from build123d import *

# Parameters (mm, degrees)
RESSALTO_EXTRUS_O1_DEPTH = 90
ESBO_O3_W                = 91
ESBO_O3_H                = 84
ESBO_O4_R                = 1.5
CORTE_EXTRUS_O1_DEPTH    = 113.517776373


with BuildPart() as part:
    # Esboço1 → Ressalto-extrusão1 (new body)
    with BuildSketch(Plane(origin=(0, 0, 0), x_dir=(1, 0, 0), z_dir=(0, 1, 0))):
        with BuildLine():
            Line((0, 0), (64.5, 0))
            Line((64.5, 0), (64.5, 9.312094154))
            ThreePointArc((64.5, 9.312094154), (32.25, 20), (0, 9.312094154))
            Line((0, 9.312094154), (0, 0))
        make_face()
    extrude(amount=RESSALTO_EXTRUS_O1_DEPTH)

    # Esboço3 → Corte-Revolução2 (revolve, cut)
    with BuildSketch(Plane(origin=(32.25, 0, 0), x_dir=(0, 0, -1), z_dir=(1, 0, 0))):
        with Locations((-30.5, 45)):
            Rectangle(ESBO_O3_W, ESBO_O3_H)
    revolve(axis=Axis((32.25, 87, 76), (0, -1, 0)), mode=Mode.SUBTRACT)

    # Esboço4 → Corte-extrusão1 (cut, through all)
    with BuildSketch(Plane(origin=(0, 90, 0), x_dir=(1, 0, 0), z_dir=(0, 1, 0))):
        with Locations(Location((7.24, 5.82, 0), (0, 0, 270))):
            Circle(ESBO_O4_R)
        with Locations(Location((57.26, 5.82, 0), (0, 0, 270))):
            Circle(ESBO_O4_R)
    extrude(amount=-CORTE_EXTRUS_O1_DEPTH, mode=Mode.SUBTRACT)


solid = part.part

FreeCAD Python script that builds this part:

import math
import FreeCAD as App
import Part
import Sketcher


def add_polygon(sketch, points):
    """Adds a closed chain of lines whose ends are joined by coincident constraints."""
    first, n = sketch.GeometryCount, len(points)
    for a, b in zip(points, points[1:] + points[:1]):
        sketch.addGeometry(Part.LineSegment(App.Vector(*a, 0), App.Vector(*b, 0)), False)
    for i in range(n):
        sketch.addConstraint(Sketcher.Constraint("Coincident", first + i, 2, first + (i + 1) % n, 1))

doc = App.newDocument("Part")
body = doc.addObject("PartDesign::Body", "Body")

sketch1 = body.newObject("Sketcher::SketchObject", "Sketch")
sketch1.AttachmentSupport = (doc.getObject("XZ_Plane"), [""])
sketch1.MapMode = "FlatFace"
sketch1.addGeometry([
    Part.LineSegment(App.Vector(0, 0, 0), App.Vector(64.5, 0, 0)),
    Part.LineSegment(App.Vector(64.5, 0, 0), App.Vector(64.5, -9.312094, 0)),
    Part.ArcOfCircle(Part.Circle(App.Vector(32.25, 34, 0), App.Vector(0, 0, 1), 54), math.radians(-126.671212), math.radians(-53.328788)),
    Part.LineSegment(App.Vector(0, -9.312094, 0), App.Vector(0, 0, 0)),
], False)
sketch1.addConstraint([
    Sketcher.Constraint("Coincident", 0, 2, 1, 1),
    Sketcher.Constraint("Coincident", 1, 2, 2, 2),
    Sketcher.Constraint("Coincident", 2, 1, 3, 1),
    Sketcher.Constraint("Coincident", 3, 2, 0, 1),
    Sketcher.Constraint("Horizontal", 0),
    Sketcher.Constraint("Vertical", 1),
    Sketcher.Constraint("Vertical", 3),
    Sketcher.Constraint("Coincident", 3, 2, -1, 1),
    Sketcher.Constraint("Horizontal", 1, 2, 2, 1),
    Sketcher.Constraint("Radius", 2, 54.0),
    Sketcher.Constraint("DistanceX", 0, 1, 0, 2, 64.5),
    Sketcher.Constraint("DistanceY", -1, 1, 2, 3, 34.0),
])
pad1 = body.newObject("PartDesign::Pad", "Pad")
pad1.Profile = sketch1
pad1.Length = 90
pad1.Reversed = True

sketch2 = body.newObject("Sketcher::SketchObject", "Sketch001")
sketch2.AttachmentSupport = (doc.getObject("YZ_Plane"), [""])
sketch2.MapMode = "FlatFace"
sketch2.AttachmentOffset = App.Placement(App.Vector(0, 0, 32.25), App.Rotation())
add_polygon(sketch2, [(87, 76), (3, 76), (3, -15), (87, -15)])
sketch2.addGeometry(Part.LineSegment(App.Vector(87, 76, 0), App.Vector(3, 76, 0)), True)
sketch2.addConstraint([
    Sketcher.Constraint("Horizontal", 0),
    Sketcher.Constraint("Vertical", 1),
    Sketcher.Constraint("Horizontal", 2),
    Sketcher.Constraint("Vertical", 3),
    Sketcher.Constraint("Horizontal", 4),
    Sketcher.Constraint("Coincident", 4, 1, 3, 2),
    Sketcher.Constraint("Vertical", 1, 2, 4, 2),
    Sketcher.Constraint("DistanceX", 0, 2, 0, 1, 84.0),
    Sketcher.Constraint("DistanceY", 1, 2, 1, 1, 91.0),
    Sketcher.Constraint("DistanceX", -1, 1, 0, 2, 3.0),
    Sketcher.Constraint("DistanceY", -1, 1, 0, 2, 76.0),
])
groove = body.newObject("PartDesign::Groove", "Groove")
groove.Profile = sketch2
groove.ReferenceAxis = (sketch2, ["Axis0"])
groove.Angle = 360

sketch3 = body.newObject("Sketcher::SketchObject", "Sketch002")
sketch3.AttachmentSupport = (doc.getObject("XZ_Plane"), [""])
sketch3.MapMode = "FlatFace"
sketch3.AttachmentOffset = App.Placement(App.Vector(0, 0, -90), App.Rotation())
sketch3.addGeometry([
    Part.Circle(App.Vector(7.24, -5.82, 0), App.Vector(0, 0, 1), 1.5),
    Part.Circle(App.Vector(57.26, -5.82, 0), App.Vector(0, 0, 1), 1.5),
], False)
sketch3.addConstraint([
    Sketcher.Constraint("Equal", 0, 1),
    Sketcher.Constraint("Horizontal", 0, 3, 1, 3),
    Sketcher.Constraint("Diameter", 0, 3.0),
    Sketcher.Constraint("DistanceX", -1, 1, 0, 3, 7.24),
    Sketcher.Constraint("DistanceY", 0, 3, -1, 1, 5.82),
    Sketcher.Constraint("DistanceX", -1, 1, 1, 3, 57.26),
])
pocket1 = body.newObject("PartDesign::Pocket", "Pocket")
pocket1.Profile = sketch3
pocket1.Type = "ThroughAll"
pocket1.Reversed = True

doc.recompute()
